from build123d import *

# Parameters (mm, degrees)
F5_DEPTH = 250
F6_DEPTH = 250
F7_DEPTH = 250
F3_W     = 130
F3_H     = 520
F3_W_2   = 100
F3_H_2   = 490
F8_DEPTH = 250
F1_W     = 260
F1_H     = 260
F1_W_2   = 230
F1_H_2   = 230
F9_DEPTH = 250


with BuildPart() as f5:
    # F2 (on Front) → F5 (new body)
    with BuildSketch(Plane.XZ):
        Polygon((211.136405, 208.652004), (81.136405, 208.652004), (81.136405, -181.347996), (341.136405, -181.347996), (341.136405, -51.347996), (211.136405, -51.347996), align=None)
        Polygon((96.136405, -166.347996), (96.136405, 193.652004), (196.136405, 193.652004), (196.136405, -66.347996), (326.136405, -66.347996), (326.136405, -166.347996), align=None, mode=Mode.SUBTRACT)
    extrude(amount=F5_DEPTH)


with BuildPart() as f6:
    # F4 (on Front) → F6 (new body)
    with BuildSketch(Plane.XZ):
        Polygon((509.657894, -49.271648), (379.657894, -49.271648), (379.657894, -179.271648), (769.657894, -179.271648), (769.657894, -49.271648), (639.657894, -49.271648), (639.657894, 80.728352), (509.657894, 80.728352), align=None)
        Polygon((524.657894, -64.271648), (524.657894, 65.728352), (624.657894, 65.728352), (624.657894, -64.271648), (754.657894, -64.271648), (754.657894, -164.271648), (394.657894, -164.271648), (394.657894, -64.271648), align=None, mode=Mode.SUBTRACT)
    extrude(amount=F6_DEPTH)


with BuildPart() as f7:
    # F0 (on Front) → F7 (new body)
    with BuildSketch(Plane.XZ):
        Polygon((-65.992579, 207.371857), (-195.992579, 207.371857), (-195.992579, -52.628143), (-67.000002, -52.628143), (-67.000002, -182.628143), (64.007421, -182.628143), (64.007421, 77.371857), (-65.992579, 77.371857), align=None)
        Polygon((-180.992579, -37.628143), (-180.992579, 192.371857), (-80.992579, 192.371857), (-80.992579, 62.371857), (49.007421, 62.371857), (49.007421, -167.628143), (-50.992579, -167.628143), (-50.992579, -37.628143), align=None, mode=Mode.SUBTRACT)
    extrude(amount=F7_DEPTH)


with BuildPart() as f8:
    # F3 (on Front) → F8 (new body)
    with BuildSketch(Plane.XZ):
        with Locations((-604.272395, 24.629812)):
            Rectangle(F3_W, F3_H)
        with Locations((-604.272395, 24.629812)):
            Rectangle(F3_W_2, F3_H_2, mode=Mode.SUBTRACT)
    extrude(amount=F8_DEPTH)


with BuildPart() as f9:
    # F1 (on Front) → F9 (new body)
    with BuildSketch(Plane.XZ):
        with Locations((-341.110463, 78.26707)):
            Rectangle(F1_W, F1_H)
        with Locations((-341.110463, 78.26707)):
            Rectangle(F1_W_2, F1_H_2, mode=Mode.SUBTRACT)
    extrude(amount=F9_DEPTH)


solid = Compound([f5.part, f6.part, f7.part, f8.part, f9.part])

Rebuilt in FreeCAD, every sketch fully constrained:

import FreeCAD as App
import Part
import Sketcher

V = App.Vector
Q = App.Units.Quantity

doc = App.newDocument("Part")
body = doc.addObject("PartDesign::Body", "Body")

# Sketch on XZ plane
sketch1 = body.newObject("Sketcher::SketchObject", "Sketch")
sketch1.AttachmentSupport = (doc.getObject("XZ_Plane"), [""])
sketch1.MapMode = "FlatFace"
sketch1.addGeometry(Part.LineSegment(V(211, 209, 0), V(81, 209, 0)), False)
sketch1.addGeometry(Part.LineSegment(V(81, 209, 0), V(81, -181, 0)), False)
sketch1.addGeometry(Part.LineSegment(V(81, -181, 0), V(341, -181, 0)), False)
sketch1.addGeometry(Part.LineSegment(V(341, -181, 0), V(341, -51, 0)), False)
sketch1.addGeometry(Part.LineSegment(V(341, -51, 0), V(211, -51, 0)), False)
sketch1.addGeometry(Part.LineSegment(V(211, -51, 0), V(211, 209, 0)), False)
sketch1.addGeometry(Part.LineSegment(V(326, -166, 0), V(96, -166, 0)), False)
sketch1.addGeometry(Part.LineSegment(V(96, -166, 0), V(96, 194, 0)), False)
sketch1.addGeometry(Part.LineSegment(V(96, 194, 0), V(196, 194, 0)), False)
sketch1.addGeometry(Part.LineSegment(V(196, 194, 0), V(196, -66, 0)), False)
sketch1.addGeometry(Part.LineSegment(V(196, -66, 0), V(326, -66, 0)), False)
sketch1.addGeometry(Part.LineSegment(V(326, -66, 0), V(326, -166, 0)), False)
sketch1.addConstraint(Sketcher.Constraint("Coincident", 0, 2, 1, 1))
sketch1.addConstraint(Sketcher.Constraint("Coincident", 1, 2, 2, 1))
sketch1.addConstraint(Sketcher.Constraint("Coincident", 2, 2, 3, 1))
sketch1.addConstraint(Sketcher.Constraint("Coincident", 3, 2, 4, 1))
sketch1.addConstraint(Sketcher.Constraint("Coincident", 4, 2, 5, 1))
sketch1.addConstraint(Sketcher.Constraint("Coincident", 5, 2, 0, 1))
sketch1.addConstraint(Sketcher.Constraint("Coincident", 6, 2, 7, 1))
sketch1.addConstraint(Sketcher.Constraint("Coincident", 7, 2, 8, 1))
sketch1.addConstraint(Sketcher.Constraint("Coincident", 8, 2, 9, 1))
sketch1.addConstraint(Sketcher.Constraint("Coincident", 9, 2, 10, 1))
sketch1.addConstraint(Sketcher.Constraint("Coincident", 10, 2, 11, 1))
sketch1.addConstraint(Sketcher.Constraint("Coincident", 11, 2, 6, 1))
sketch1.addConstraint(Sketcher.Constraint("Horizontal", 0))
sketch1.addConstraint(Sketcher.Constraint("Vertical", 1))
sketch1.addConstraint(Sketcher.Constraint("Horizontal", 2))
sketch1.addConstraint(Sketcher.Constraint("Vertical", 3))
sketch1.addConstraint(Sketcher.Constraint("Horizontal", 4))
sketch1.addConstraint(Sketcher.Constraint("Vertical", 5))
sketch1.addConstraint(Sketcher.Constraint("Horizontal", 6))
sketch1.addConstraint(Sketcher.Constraint("Vertical", 7))
sketch1.addConstraint(Sketcher.Constraint("Horizontal", 8))
sketch1.addConstraint(Sketcher.Constraint("Vertical", 9))
sketch1.addConstraint(Sketcher.Constraint("Horizontal", 10))
sketch1.addConstraint(Sketcher.Constraint("Vertical", 11))
sketch1.addConstraint(Sketcher.Constraint("Equal", 0, 4))
sketch1.addConstraint(Sketcher.Constraint("Equal", 4, 10))
sketch1.addConstraint(Sketcher.Constraint("Equal", 10, 3))
sketch1.addConstraint(Sketcher.Constraint("Equal", 2, 5))
sketch1.addConstraint(Sketcher.Constraint("Equal", 5, 9))
sketch1.addConstraint(Sketcher.Constraint("Equal", 8, 11))
sketch1.addConstraint(Sketcher.Constraint("DistanceX", 0, 2, 0, 1, Q("130 mm")))
sketch1.addConstraint(Sketcher.Constraint("DistanceX", 6, 2, 6, 1, Q("230 mm")))
sketch1.addConstraint(Sketcher.Constraint("DistanceX", 1, 2, 6, 2, Q("15 mm")))
sketch1.addConstraint(Sketcher.Constraint("DistanceY", 1, 2, 6, 2, Q("15 mm")))
sketch1.addConstraint(Sketcher.Constraint("DistanceX", -1, 1, 0, 2, Q("81.136405 mm")))
sketch1.addConstraint(Sketcher.Constraint("DistanceY", -1, 1, 0, 2, Q("208.652004 mm")))
pad1 = body.newObject("PartDesign::Pad", "Pad")
pad1.Profile = sketch1
pad1.Length = 250
body2 = doc.addObject("PartDesign::Body", "Body001")

# Sketch on XZ plane
sketch2 = body2.newObject("Sketcher::SketchObject", "Sketch001")
sketch2.AttachmentSupport = (doc.getObject("XZ_Plane001"), [""])
sketch2.MapMode = "FlatFace"
sketch2.addGeometry(Part.LineSegment(V(510, -49, 0), V(380, -49, 0)), False)
sketch2.addGeometry(Part.LineSegment(V(380, -49, 0), V(380, -179, 0)), False)
sketch2.addGeometry(Part.LineSegment(V(380, -179, 0), V(770, -179, 0)), False)
sketch2.addGeometry(Part.LineSegment(V(770, -179, 0), V(770, -49, 0)), False)
sketch2.addGeometry(Part.LineSegment(V(770, -49, 0), V(640, -49, 0)), False)
sketch2.addGeometry(Part.LineSegment(V(640, -49, 0), V(640, 81, 0)), False)
sketch2.addGeometry(Part.LineSegment(V(640, 81, 0), V(510, 81, 0)), False)
sketch2.addGeometry(Part.LineSegment(V(510, 81, 0), V(510, -49, 0)), False)
sketch2.addGeometry(Part.LineSegment(V(395, -64, 0), V(525, -64, 0)), False)
sketch2.addGeometry(Part.LineSegment(V(525, -64, 0), V(525, 66, 0)), False)
sketch2.addGeometry(Part.LineSegment(V(525, 66, 0), V(625, 66, 0)), False)
sketch2.addGeometry(Part.LineSegment(V(625, 66, 0), V(625, -64, 0)), False)
sketch2.addGeometry(Part.LineSegment(V(625, -64, 0), V(755, -64, 0)), False)
sketch2.addGeometry(Part.LineSegment(V(755, -64, 0), V(755, -164, 0)), False)
sketch2.addGeometry(Part.LineSegment(V(755, -164, 0), V(395, -164, 0)), False)
sketch2.addGeometry(Part.LineSegment(V(395, -164, 0), V(395, -64, 0)), False)
sketch2.addConstraint(Sketcher.Constraint("Coincident", 0, 2, 1, 1))
sketch2.addConstraint(Sketcher.Constraint("Coincident", 1, 2, 2, 1))
sketch2.addConstraint(Sketcher.Constraint("Coincident", 2, 2, 3, 1))
sketch2.addConstraint(Sketcher.Constraint("Coincident", 3, 2, 4, 1))
sketch2.addConstraint(Sketcher.Constraint("Coincident", 4, 2, 5, 1))
sketch2.addConstraint(Sketcher.Constraint("Coincident", 5, 2, 6, 1))
sketch2.addConstraint(Sketcher.Constraint("Coincident", 6, 2, 7, 1))
sketch2.addConstraint(Sketcher.Constraint("Coincident", 7, 2, 0, 1))
sketch2.addConstraint(Sketcher.Constraint("Coincident", 8, 2, 9, 1))
sketch2.addConstraint(Sketcher.Constraint("Coincident", 9, 2, 10, 1))
sketch2.addConstraint(Sketcher.Constraint("Coincident", 10, 2, 11, 1))
sketch2.addConstraint(Sketcher.Constraint("Coincident", 11, 2, 12, 1))
sketch2.addConstraint(Sketcher.Constraint("Coincident", 12, 2, 13, 1))
sketch2.addConstraint(Sketcher.Constraint("Coincident", 13, 2, 14, 1))
sketch2.addConstraint(Sketcher.Constraint("Coincident", 14, 2, 15, 1))
sketch2.addConstraint(Sketcher.Constraint("Coincident", 15, 2, 8, 1))
sketch2.addConstraint(Sketcher.Constraint("Horizontal", 0))
sketch2.addConstraint(Sketcher.Constraint("Vertical", 1))
sketch2.addConstraint(Sketcher.Constraint("Horizontal", 2))
sketch2.addConstraint(Sketcher.Constraint("Vertical", 3))
sketch2.addConstraint(Sketcher.Constraint("Horizontal", 4))
sketch2.addConstraint(Sketcher.Constraint("Vertical", 5))
sketch2.addConstraint(Sketcher.Constraint("Horizontal", 6))
sketch2.addConstraint(Sketcher.Constraint("Vertical", 7))
sketch2.addConstraint(Sketcher.Constraint("Horizontal", 8))
sketch2.addConstraint(Sketcher.Constraint("Vertical", 9))
sketch2.addConstraint(Sketcher.Constraint("Horizontal", 10))
sketch2.addConstraint(Sketcher.Constraint("Vertical", 11))
sketch2.addConstraint(Sketcher.Constraint("Horizontal", 12))
sketch2.addConstraint(Sketcher.Constraint("Vertical", 13))
sketch2.addConstraint(Sketcher.Constraint("Horizontal", 14))
sketch2.addConstraint(Sketcher.Constraint("Vertical", 15))
sketch2.addConstraint(Sketcher.Constraint("Horizontal", 0, 2, 3, 2))
sketch2.addConstraint(Sketcher.Constraint("Horizontal", 8, 2, 11, 2))
sketch2.addConstraint(Sketcher.Constraint("Equal", 0, 4))
sketch2.addConstraint(Sketcher.Constraint("Equal", 4, 6))
sketch2.addConstraint(Sketcher.Constraint("Equal", 6, 8))
sketch2.addConstraint(Sketcher.Constraint("Equal", 8, 12))
sketch2.addConstraint(Sketcher.Constraint("Equal", 12, 1))
sketch2.addConstraint(Sketcher.Constraint("Equal", 3, 5))
sketch2.addConstraint(Sketcher.Constraint("Equal", 7, 9))
sketch2.addConstraint(Sketcher.Constraint("Equal", 10, 13))
sketch2.addConstraint(Sketcher.Constraint("DistanceX", 0, 2, 0, 1, Q("130 mm")))
sketch2.addConstraint(Sketcher.Constraint("DistanceX", 10, 1, 10, 2, Q("100 mm")))
sketch2.addConstraint(Sketcher.Constraint("DistanceX", 7, 2, 8, 2, Q("15 mm")))
sketch2.addConstraint(Sketcher.Constraint("DistanceY", 8, 2, 7, 2, Q("15 mm")))
sketch2.addConstraint(Sketcher.Constraint("DistanceY", 1, 2, -1, 1, Q("179.271648 mm")))
sketch2.addConstraint(Sketcher.Constraint("DistanceX", -1, 1, 0, 2, Q("379.657894 mm")))
pad2 = body2.newObject("PartDesign::Pad", "Pad001")
pad2.Profile = sketch2
pad2.Length = 250
body3 = doc.addObject("PartDesign::Body", "Body002")

# Sketch on XZ plane
sketch3 = body3.newObject("Sketcher::SketchObject", "Sketch002")
sketch3.AttachmentSupport = (doc.getObject("XZ_Plane002"), [""])
sketch3.MapMode = "FlatFace"
sketch3.addGeometry(Part.LineSegment(V(-66, 207, 0), V(-196, 207, 0)), False)
sketch3.addGeometry(Part.LineSegment(V(-196, 207, 0), V(-196, -53, 0)), False)
sketch3.addGeometry(Part.LineSegment(V(-196, -53, 0), V(-67, -53, 0)), False)
sketch3.addGeometry(Part.LineSegment(V(-67, -53, 0), V(-67, -183, 0)), False)
sketch3.addGeometry(Part.LineSegment(V(-67, -183, 0), V(64, -183, 0)), False)
sketch3.addGeometry(Part.LineSegment(V(64, -183, 0), V(64, 77, 0)), False)
sketch3.addGeometry(Part.LineSegment(V(64, 77, 0), V(-66, 77, 0)), False)
sketch3.addGeometry(Part.LineSegment(V(-66, 77, 0), V(-66, 207, 0)), False)
sketch3.addGeometry(Part.LineSegment(V(-51, -38, 0), V(-181, -38, 0)), False)
sketch3.addGeometry(Part.LineSegment(V(-181, -38, 0), V(-181, 192, 0)), False)
sketch3.addGeometry(Part.LineSegment(V(-181, 192, 0), V(-81, 192, 0)), False)
sketch3.addGeometry(Part.LineSegment(V(-81, 192, 0), V(-81, 62, 0)), False)
sketch3.addGeometry(Part.LineSegment(V(-81, 62, 0), V(49, 62, 0)), False)
sketch3.addGeometry(Part.LineSegment(V(49, 62, 0), V(49, -168, 0)), False)
sketch3.addGeometry(Part.LineSegment(V(49, -168, 0), V(-51, -168, 0)), False)
sketch3.addGeometry(Part.LineSegment(V(-51, -168, 0), V(-51, -38, 0)), False)
sketch3.addConstraint(Sketcher.Constraint("Coincident", 0, 2, 1, 1))
sketch3.addConstraint(Sketcher.Constraint("Coincident", 1, 2, 2, 1))
sketch3.addConstraint(Sketcher.Constraint("Coincident", 2, 2, 3, 1))
sketch3.addConstraint(Sketcher.Constraint("Coincident", 3, 2, 4, 1))
sketch3.addConstraint(Sketcher.Constraint("Coincident", 4, 2, 5, 1))
sketch3.addConstraint(Sketcher.Constraint("Coincident", 5, 2, 6, 1))
sketch3.addConstraint(Sketcher.Constraint("Coincident", 6, 2, 7, 1))
sketch3.addConstraint(Sketcher.Constraint("Coincident", 7, 2, 0, 1))
sketch3.addConstraint(Sketcher.Constraint("Coincident", 8, 2, 9, 1))
sketch3.addConstraint(Sketcher.Constraint("Coincident", 9, 2, 10, 1))
sketch3.addConstraint(Sketcher.Constraint("Coincident", 10, 2, 11, 1))
sketch3.addConstraint(Sketcher.Constraint("Coincident", 11, 2, 12, 1))
sketch3.addConstraint(Sketcher.Constraint("Coincident", 12, 2, 13, 1))
sketch3.addConstraint(Sketcher.Constraint("Coincident", 13, 2, 14, 1))
sketch3.addConstraint(Sketcher.Constraint("Coincident", 14, 2, 15, 1))
sketch3.addConstraint(Sketcher.Constraint("Coincident", 15, 2, 8, 1))
sketch3.addConstraint(Sketcher.Constraint("Horizontal", 0))
sketch3.addConstraint(Sketcher.Constraint("Vertical", 1))
sketch3.addConstraint(Sketcher.Constraint("Horizontal", 2))
sketch3.addConstraint(Sketcher.Constraint("Vertical", 3))
sketch3.addConstraint(Sketcher.Constraint("Horizontal", 4))
sketch3.addConstraint(Sketcher.Constraint("Vertical", 5))
sketch3.addConstraint(Sketcher.Constraint("Horizontal", 6))
sketch3.addConstraint(Sketcher.Constraint("Vertical", 7))
sketch3.addConstraint(Sketcher.Constraint("Horizontal", 8))
sketch3.addConstraint(Sketcher.Constraint("Vertical", 9))
sketch3.addConstraint(Sketcher.Constraint("Horizontal", 10))
sketch3.addConstraint(Sketcher.Constraint("Vertical", 11))
sketch3.addConstraint(Sketcher.Constraint("Horizontal", 12))
sketch3.addConstraint(Sketcher.Constraint("Vertical", 13))
sketch3.addConstraint(Sketcher.Constraint("Horizontal", 14))
sketch3.addConstraint(Sketcher.Constraint("Vertical", 15))
sketch3.addConstraint(Sketcher.Constraint("Equal", 0, 6))
sketch3.addConstraint(Sketcher.Constraint("Equal", 6, 8))
sketch3.addConstraint(Sketcher.Constraint("Equal", 8, 12))
sketch3.addConstraint(Sketcher.Constraint("Equal", 12, 3))
sketch3.addConstraint(Sketcher.Constraint("Equal", 1, 5))
sketch3.addConstraint(Sketcher.Constraint("Equal", 7, 11))
sketch3.addConstraint(Sketcher.Constraint("Equal", 9, 13))
sketch3.addConstraint(Sketcher.Constraint("DistanceX", 0, 2, 0, 1, Q("130 mm")))
sketch3.addConstraint(Sketcher.Constraint("DistanceX", 10, 1, 10, 2, Q("100 mm")))
sketch3.addConstraint(Sketcher.Constraint("DistanceY", 1, 2, 1, 1, Q("260 mm")))
sketch3.addConstraint(Sketcher.Constraint("DistanceY", 9, 1, 9, 2, Q("230 mm")))
sketch3.addConstraint(Sketcher.Constraint("DistanceX", 2, 2, -1, 1, Q("67.000002 mm")))
sketch3.addConstraint(Sketcher.Constraint("DistanceX", 1, 2, 8, 2, Q("15 mm")))
sketch3.addConstraint(Sketcher.Constraint("DistanceY", 1, 2, 8, 2, Q("15 mm")))
sketch3.addConstraint(Sketcher.Constraint("DistanceX", 2, 1, 2, 2, Q("128.992577 mm")))
sketch3.addConstraint(Sketcher.Constraint("DistanceY", -1, 1, 0, 2, Q("207.371857 mm")))
pad3 = body3.newObject("PartDesign::Pad", "Pad002")
pad3.Profile = sketch3
pad3.Length = 250
body4 = doc.addObject("PartDesign::Body", "Body003")

# Sketch on XZ plane
sketch4 = body4.newObject("Sketcher::SketchObject", "Sketch003")
sketch4.AttachmentSupport = (doc.getObject("XZ_Plane003"), [""])
sketch4.MapMode = "FlatFace"
sketch4.addGeometry(Part.LineSegment(V(-669, 285, 0), V(-669, -235, 0)), False)
sketch4.addGeometry(Part.LineSegment(V(-669, -235, 0), V(-539, -235, 0)), False)
sketch4.addGeometry(Part.LineSegment(V(-539, -235, 0), V(-539, 285, 0)), False)
sketch4.addGeometry(Part.LineSegment(V(-539, 285, 0), V(-669, 285, 0)), False)
sketch4.addGeometry(Part.LineSegment(V(-554, -220, 0), V(-654, -220, 0)), False)
sketch4.addGeometry(Part.LineSegment(V(-654, -220, 0), V(-654, 270, 0)), False)
sketch4.addGeometry(Part.LineSegment(V(-654, 270, 0), V(-554, 270, 0)), False)
sketch4.addGeometry(Part.LineSegment(V(-554, 270, 0), V(-554, -220, 0)), False)
sketch4.addConstraint(Sketcher.Constraint("Coincident", 0, 2, 1, 1))
sketch4.addConstraint(Sketcher.Constraint("Coincident", 1, 2, 2, 1))
sketch4.addConstraint(Sketcher.Constraint("Coincident", 2, 2, 3, 1))
sketch4.addConstraint(Sketcher.Constraint("Coincident", 3, 2, 0, 1))
sketch4.addConstraint(Sketcher.Constraint("Coincident", 4, 2, 5, 1))
sketch4.addConstraint(Sketcher.Constraint("Coincident", 5, 2, 6, 1))
sketch4.addConstraint(Sketcher.Constraint("Coincident", 6, 2, 7, 1))
sketch4.addConstraint(Sketcher.Constraint("Coincident", 7, 2, 4, 1))
sketch4.addConstraint(Sketcher.Constraint("Vertical", 0))
sketch4.addConstraint(Sketcher.Constraint("Horizontal", 1))
sketch4.addConstraint(Sketcher.Constraint("Vertical", 2))
sketch4.addConstraint(Sketcher.Constraint("Horizontal", 3))
sketch4.addConstraint(Sketcher.Constraint("Horizontal", 4))
sketch4.addConstraint(Sketcher.Constraint("Vertical", 5))
sketch4.addConstraint(Sketcher.Constraint("Horizontal", 6))
sketch4.addConstraint(Sketcher.Constraint("Vertical", 7))
sketch4.addConstraint(Sketcher.Constraint("DistanceX", 1, 1, 1, 2, Q("130 mm")))
sketch4.addConstraint(Sketcher.Constraint("DistanceX", 4, 2, 4, 1, Q("100 mm")))
sketch4.addConstraint(Sketcher.Constraint("DistanceY", 0, 2, 0, 1, Q("520 mm")))
sketch4.addConstraint(Sketcher.Constraint("DistanceY", 5, 1, 5, 2, Q("490 mm")))
sketch4.addConstraint(Sketcher.Constraint("DistanceX", 0, 2, 4, 2, Q("15 mm")))
sketch4.addConstraint(Sketcher.Constraint("DistanceY", 0, 2, 4, 2, Q("15 mm")))
sketch4.addConstraint(Sketcher.Constraint("DistanceY", 0, 2, -1, 1, Q("235.370188 mm")))
sketch4.addConstraint(Sketcher.Constraint("DistanceX", 0, 2, -1, 1, Q("669.272395 mm")))
pad4 = body4.newObject("PartDesign::Pad", "Pad003")
pad4.Profile = sketch4
pad4.Length = 250
body5 = doc.addObject("PartDesign::Body", "Body004")

# Sketch on XZ plane
sketch5 = body5.newObject("Sketcher::SketchObject", "Sketch004")
sketch5.AttachmentSupport = (doc.getObject("XZ_Plane004"), [""])
sketch5.MapMode = "FlatFace"
sketch5.addGeometry(Part.LineSegment(V(-471, 208, 0), V(-471, -52, 0)), False)
sketch5.addGeometry(Part.LineSegment(V(-471, -52, 0), V(-211, -52, 0)), False)
sketch5.addGeometry(Part.LineSegment(V(-211, -52, 0), V(-211, 208, 0)), False)
sketch5.addGeometry(Part.LineSegment(V(-211, 208, 0), V(-471, 208, 0)), False)
sketch5.addGeometry(Part.LineSegment(V(-226, -37, 0), V(-456, -37, 0)), False)
sketch5.addGeometry(Part.LineSegment(V(-456, -37, 0), V(-456, 193, 0)), False)
sketch5.addGeometry(Part.LineSegment(V(-456, 193, 0), V(-226, 193, 0)), False)
sketch5.addGeometry(Part.LineSegment(V(-226, 193, 0), V(-226, -37, 0)), False)
sketch5.addConstraint(Sketcher.Constraint("Coincident", 0, 2, 1, 1))
sketch5.addConstraint(Sketcher.Constraint("Coincident", 1, 2, 2, 1))
sketch5.addConstraint(Sketcher.Constraint("Coincident", 2, 2, 3, 1))
sketch5.addConstraint(Sketcher.Constraint("Coincident", 3, 2, 0, 1))
sketch5.addConstraint(Sketcher.Constraint("Coincident", 4, 2, 5, 1))
sketch5.addConstraint(Sketcher.Constraint("Coincident", 5, 2, 6, 1))
sketch5.addConstraint(Sketcher.Constraint("Coincident", 6, 2, 7, 1))
sketch5.addConstraint(Sketcher.Constraint("Coincident", 7, 2, 4, 1))
sketch5.addConstraint(Sketcher.Constraint("Vertical", 0))
sketch5.addConstraint(Sketcher.Constraint("Horizontal", 1))
sketch5.addConstraint(Sketcher.Constraint("Vertical", 2))
sketch5.addConstraint(Sketcher.Constraint("Horizontal", 3))
sketch5.addConstraint(Sketcher.Constraint("Horizontal", 4))
sketch5.addConstraint(Sketcher.Constraint("Vertical", 5))
sketch5.addConstraint(Sketcher.Constraint("Horizontal", 6))
sketch5.addConstraint(Sketcher.Constraint("Vertical", 7))
sketch5.addConstraint(Sketcher.Constraint("Equal", 3, 0))
sketch5.addConstraint(Sketcher.Constraint("Equal", 6, 5))
sketch5.addConstraint(Sketcher.Constraint("DistanceX", 1, 1, 1, 2, Q("260 mm")))
sketch5.addConstraint(Sketcher.Constraint("DistanceX", 4, 2, 4, 1, Q("230 mm")))
sketch5.addConstraint(Sketcher.Constraint("DistanceX", 0, 2, 4, 2, Q("15 mm")))
sketch5.addConstraint(Sketcher.Constraint("DistanceY", 0, 2, 4, 2, Q("15 mm")))
sketch5.addConstraint(Sketcher.Constraint("DistanceY", 0, 2, -1, 1, Q("51.73293 mm")))
sketch5.addConstraint(Sketcher.Constraint("DistanceX", 0, 2, -1, 1, Q("471.110463 mm")))
pad5 = body5.newObject("PartDesign::Pad", "Pad004")
pad5.Profile = sketch5
pad5.Length = 250

doc.recompute()
